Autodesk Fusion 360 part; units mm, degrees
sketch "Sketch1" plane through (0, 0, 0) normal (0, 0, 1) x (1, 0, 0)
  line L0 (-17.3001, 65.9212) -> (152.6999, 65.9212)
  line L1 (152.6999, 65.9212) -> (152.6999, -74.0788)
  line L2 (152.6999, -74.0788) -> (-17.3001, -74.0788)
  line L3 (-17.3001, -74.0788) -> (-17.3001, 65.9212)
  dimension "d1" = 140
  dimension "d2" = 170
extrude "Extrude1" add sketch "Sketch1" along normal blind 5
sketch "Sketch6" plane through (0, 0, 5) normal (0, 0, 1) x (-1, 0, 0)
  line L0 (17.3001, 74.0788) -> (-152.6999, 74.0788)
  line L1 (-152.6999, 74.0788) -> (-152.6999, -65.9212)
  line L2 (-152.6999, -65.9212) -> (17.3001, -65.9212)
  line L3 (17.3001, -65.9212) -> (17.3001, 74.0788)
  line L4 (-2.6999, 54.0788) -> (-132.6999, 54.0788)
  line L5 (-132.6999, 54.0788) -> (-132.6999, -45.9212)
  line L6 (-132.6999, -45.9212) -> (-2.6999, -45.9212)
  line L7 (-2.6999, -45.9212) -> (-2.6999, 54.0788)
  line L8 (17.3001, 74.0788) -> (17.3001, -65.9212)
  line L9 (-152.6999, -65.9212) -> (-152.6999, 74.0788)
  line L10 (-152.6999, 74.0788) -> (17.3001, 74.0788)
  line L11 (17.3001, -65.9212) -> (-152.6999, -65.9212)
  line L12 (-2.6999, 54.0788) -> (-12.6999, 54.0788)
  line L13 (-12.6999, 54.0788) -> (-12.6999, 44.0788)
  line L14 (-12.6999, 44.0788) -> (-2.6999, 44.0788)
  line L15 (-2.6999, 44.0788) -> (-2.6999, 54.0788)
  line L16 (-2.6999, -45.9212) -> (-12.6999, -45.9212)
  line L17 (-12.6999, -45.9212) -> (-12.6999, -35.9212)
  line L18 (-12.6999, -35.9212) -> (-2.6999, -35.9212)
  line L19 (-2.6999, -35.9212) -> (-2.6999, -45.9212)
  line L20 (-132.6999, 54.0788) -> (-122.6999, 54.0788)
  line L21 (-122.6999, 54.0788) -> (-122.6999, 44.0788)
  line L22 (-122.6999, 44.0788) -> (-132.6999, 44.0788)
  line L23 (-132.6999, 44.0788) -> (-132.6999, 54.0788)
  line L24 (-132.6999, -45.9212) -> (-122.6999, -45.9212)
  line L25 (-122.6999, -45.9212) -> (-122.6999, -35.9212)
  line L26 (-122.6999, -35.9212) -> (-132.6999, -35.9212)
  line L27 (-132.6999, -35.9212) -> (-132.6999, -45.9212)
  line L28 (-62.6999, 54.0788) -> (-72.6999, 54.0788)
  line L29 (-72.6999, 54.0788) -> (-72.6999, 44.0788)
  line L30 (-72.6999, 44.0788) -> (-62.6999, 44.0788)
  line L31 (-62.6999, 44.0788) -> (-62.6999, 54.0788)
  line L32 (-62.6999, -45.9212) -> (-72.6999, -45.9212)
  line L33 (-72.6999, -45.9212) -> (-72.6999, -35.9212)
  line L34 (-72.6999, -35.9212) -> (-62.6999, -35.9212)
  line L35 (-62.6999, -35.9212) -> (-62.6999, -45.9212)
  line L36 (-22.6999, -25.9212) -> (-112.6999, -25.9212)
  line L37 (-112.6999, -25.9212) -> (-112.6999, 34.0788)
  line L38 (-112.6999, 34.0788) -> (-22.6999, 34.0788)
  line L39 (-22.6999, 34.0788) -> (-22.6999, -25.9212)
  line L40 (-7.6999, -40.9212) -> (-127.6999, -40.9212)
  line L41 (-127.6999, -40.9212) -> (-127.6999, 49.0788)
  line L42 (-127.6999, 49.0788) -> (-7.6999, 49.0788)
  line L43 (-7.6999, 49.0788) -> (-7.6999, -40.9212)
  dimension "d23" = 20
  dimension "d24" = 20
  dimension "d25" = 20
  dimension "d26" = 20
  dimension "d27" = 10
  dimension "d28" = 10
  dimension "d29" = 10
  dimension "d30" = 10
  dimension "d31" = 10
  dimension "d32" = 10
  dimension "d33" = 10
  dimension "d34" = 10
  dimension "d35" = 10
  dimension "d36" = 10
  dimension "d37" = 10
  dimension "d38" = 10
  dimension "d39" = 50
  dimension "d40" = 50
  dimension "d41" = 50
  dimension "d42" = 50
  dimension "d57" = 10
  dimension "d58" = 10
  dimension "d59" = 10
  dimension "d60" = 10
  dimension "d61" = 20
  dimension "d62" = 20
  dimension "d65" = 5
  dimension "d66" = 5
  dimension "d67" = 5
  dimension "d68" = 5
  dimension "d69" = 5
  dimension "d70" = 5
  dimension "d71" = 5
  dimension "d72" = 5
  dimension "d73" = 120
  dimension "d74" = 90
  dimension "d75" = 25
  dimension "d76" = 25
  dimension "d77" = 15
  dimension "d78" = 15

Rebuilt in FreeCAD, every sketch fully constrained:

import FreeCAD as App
import Part
import Sketcher

V = App.Vector
Q = App.Units.Quantity


def add_polygon(sketch, points):
    """Adds a closed chain of lines whose ends are joined by coincident constraints."""
    first, n = sketch.GeometryCount, len(points)
    for a, b in zip(points, points[1:] + points[:1]):
        sketch.addGeometry(Part.LineSegment(App.Vector(*a, 0), App.Vector(*b, 0)), False)
    for i in range(n):
        sketch.addConstraint(Sketcher.Constraint("Coincident", first + i, 2, first + (i + 1) % n, 1))

doc = App.newDocument("Part")
body = doc.addObject("PartDesign::Body", "Body")

# Sketch on XY plane
sketch1 = body.newObject("Sketcher::SketchObject", "Sketch")
sketch1.AttachmentSupport = (doc.getObject("XY_Plane"), [""])
sketch1.MapMode = "FlatFace"
add_polygon(sketch1, [(153, 66), (-17, 66), (-17, -74), (153, -74)])  # lines 0-3
sketch1.addConstraint([
    Sketcher.Constraint("Horizontal", 0),
    Sketcher.Constraint("Vertical", 1),
    Sketcher.Constraint("Horizontal", 2),
    Sketcher.Constraint("Vertical", 3),
    Sketcher.Constraint("DistanceX", 0, 2, 0, 1, Q("170 mm")),
    Sketcher.Constraint("DistanceY", 1, 2, 1, 1, Q("140 mm")),
    Sketcher.Constraint("DistanceX", 0, 2, -1, 1, Q("17.3 mm")),
    Sketcher.Constraint("DistanceY", -1, 1, 0, 2, Q("65.9212 mm")),
])
pad1 = body.newObject("PartDesign::Pad", "Pad")
pad1.Profile = sketch1
pad1.Length = 5

doc.recompute()
